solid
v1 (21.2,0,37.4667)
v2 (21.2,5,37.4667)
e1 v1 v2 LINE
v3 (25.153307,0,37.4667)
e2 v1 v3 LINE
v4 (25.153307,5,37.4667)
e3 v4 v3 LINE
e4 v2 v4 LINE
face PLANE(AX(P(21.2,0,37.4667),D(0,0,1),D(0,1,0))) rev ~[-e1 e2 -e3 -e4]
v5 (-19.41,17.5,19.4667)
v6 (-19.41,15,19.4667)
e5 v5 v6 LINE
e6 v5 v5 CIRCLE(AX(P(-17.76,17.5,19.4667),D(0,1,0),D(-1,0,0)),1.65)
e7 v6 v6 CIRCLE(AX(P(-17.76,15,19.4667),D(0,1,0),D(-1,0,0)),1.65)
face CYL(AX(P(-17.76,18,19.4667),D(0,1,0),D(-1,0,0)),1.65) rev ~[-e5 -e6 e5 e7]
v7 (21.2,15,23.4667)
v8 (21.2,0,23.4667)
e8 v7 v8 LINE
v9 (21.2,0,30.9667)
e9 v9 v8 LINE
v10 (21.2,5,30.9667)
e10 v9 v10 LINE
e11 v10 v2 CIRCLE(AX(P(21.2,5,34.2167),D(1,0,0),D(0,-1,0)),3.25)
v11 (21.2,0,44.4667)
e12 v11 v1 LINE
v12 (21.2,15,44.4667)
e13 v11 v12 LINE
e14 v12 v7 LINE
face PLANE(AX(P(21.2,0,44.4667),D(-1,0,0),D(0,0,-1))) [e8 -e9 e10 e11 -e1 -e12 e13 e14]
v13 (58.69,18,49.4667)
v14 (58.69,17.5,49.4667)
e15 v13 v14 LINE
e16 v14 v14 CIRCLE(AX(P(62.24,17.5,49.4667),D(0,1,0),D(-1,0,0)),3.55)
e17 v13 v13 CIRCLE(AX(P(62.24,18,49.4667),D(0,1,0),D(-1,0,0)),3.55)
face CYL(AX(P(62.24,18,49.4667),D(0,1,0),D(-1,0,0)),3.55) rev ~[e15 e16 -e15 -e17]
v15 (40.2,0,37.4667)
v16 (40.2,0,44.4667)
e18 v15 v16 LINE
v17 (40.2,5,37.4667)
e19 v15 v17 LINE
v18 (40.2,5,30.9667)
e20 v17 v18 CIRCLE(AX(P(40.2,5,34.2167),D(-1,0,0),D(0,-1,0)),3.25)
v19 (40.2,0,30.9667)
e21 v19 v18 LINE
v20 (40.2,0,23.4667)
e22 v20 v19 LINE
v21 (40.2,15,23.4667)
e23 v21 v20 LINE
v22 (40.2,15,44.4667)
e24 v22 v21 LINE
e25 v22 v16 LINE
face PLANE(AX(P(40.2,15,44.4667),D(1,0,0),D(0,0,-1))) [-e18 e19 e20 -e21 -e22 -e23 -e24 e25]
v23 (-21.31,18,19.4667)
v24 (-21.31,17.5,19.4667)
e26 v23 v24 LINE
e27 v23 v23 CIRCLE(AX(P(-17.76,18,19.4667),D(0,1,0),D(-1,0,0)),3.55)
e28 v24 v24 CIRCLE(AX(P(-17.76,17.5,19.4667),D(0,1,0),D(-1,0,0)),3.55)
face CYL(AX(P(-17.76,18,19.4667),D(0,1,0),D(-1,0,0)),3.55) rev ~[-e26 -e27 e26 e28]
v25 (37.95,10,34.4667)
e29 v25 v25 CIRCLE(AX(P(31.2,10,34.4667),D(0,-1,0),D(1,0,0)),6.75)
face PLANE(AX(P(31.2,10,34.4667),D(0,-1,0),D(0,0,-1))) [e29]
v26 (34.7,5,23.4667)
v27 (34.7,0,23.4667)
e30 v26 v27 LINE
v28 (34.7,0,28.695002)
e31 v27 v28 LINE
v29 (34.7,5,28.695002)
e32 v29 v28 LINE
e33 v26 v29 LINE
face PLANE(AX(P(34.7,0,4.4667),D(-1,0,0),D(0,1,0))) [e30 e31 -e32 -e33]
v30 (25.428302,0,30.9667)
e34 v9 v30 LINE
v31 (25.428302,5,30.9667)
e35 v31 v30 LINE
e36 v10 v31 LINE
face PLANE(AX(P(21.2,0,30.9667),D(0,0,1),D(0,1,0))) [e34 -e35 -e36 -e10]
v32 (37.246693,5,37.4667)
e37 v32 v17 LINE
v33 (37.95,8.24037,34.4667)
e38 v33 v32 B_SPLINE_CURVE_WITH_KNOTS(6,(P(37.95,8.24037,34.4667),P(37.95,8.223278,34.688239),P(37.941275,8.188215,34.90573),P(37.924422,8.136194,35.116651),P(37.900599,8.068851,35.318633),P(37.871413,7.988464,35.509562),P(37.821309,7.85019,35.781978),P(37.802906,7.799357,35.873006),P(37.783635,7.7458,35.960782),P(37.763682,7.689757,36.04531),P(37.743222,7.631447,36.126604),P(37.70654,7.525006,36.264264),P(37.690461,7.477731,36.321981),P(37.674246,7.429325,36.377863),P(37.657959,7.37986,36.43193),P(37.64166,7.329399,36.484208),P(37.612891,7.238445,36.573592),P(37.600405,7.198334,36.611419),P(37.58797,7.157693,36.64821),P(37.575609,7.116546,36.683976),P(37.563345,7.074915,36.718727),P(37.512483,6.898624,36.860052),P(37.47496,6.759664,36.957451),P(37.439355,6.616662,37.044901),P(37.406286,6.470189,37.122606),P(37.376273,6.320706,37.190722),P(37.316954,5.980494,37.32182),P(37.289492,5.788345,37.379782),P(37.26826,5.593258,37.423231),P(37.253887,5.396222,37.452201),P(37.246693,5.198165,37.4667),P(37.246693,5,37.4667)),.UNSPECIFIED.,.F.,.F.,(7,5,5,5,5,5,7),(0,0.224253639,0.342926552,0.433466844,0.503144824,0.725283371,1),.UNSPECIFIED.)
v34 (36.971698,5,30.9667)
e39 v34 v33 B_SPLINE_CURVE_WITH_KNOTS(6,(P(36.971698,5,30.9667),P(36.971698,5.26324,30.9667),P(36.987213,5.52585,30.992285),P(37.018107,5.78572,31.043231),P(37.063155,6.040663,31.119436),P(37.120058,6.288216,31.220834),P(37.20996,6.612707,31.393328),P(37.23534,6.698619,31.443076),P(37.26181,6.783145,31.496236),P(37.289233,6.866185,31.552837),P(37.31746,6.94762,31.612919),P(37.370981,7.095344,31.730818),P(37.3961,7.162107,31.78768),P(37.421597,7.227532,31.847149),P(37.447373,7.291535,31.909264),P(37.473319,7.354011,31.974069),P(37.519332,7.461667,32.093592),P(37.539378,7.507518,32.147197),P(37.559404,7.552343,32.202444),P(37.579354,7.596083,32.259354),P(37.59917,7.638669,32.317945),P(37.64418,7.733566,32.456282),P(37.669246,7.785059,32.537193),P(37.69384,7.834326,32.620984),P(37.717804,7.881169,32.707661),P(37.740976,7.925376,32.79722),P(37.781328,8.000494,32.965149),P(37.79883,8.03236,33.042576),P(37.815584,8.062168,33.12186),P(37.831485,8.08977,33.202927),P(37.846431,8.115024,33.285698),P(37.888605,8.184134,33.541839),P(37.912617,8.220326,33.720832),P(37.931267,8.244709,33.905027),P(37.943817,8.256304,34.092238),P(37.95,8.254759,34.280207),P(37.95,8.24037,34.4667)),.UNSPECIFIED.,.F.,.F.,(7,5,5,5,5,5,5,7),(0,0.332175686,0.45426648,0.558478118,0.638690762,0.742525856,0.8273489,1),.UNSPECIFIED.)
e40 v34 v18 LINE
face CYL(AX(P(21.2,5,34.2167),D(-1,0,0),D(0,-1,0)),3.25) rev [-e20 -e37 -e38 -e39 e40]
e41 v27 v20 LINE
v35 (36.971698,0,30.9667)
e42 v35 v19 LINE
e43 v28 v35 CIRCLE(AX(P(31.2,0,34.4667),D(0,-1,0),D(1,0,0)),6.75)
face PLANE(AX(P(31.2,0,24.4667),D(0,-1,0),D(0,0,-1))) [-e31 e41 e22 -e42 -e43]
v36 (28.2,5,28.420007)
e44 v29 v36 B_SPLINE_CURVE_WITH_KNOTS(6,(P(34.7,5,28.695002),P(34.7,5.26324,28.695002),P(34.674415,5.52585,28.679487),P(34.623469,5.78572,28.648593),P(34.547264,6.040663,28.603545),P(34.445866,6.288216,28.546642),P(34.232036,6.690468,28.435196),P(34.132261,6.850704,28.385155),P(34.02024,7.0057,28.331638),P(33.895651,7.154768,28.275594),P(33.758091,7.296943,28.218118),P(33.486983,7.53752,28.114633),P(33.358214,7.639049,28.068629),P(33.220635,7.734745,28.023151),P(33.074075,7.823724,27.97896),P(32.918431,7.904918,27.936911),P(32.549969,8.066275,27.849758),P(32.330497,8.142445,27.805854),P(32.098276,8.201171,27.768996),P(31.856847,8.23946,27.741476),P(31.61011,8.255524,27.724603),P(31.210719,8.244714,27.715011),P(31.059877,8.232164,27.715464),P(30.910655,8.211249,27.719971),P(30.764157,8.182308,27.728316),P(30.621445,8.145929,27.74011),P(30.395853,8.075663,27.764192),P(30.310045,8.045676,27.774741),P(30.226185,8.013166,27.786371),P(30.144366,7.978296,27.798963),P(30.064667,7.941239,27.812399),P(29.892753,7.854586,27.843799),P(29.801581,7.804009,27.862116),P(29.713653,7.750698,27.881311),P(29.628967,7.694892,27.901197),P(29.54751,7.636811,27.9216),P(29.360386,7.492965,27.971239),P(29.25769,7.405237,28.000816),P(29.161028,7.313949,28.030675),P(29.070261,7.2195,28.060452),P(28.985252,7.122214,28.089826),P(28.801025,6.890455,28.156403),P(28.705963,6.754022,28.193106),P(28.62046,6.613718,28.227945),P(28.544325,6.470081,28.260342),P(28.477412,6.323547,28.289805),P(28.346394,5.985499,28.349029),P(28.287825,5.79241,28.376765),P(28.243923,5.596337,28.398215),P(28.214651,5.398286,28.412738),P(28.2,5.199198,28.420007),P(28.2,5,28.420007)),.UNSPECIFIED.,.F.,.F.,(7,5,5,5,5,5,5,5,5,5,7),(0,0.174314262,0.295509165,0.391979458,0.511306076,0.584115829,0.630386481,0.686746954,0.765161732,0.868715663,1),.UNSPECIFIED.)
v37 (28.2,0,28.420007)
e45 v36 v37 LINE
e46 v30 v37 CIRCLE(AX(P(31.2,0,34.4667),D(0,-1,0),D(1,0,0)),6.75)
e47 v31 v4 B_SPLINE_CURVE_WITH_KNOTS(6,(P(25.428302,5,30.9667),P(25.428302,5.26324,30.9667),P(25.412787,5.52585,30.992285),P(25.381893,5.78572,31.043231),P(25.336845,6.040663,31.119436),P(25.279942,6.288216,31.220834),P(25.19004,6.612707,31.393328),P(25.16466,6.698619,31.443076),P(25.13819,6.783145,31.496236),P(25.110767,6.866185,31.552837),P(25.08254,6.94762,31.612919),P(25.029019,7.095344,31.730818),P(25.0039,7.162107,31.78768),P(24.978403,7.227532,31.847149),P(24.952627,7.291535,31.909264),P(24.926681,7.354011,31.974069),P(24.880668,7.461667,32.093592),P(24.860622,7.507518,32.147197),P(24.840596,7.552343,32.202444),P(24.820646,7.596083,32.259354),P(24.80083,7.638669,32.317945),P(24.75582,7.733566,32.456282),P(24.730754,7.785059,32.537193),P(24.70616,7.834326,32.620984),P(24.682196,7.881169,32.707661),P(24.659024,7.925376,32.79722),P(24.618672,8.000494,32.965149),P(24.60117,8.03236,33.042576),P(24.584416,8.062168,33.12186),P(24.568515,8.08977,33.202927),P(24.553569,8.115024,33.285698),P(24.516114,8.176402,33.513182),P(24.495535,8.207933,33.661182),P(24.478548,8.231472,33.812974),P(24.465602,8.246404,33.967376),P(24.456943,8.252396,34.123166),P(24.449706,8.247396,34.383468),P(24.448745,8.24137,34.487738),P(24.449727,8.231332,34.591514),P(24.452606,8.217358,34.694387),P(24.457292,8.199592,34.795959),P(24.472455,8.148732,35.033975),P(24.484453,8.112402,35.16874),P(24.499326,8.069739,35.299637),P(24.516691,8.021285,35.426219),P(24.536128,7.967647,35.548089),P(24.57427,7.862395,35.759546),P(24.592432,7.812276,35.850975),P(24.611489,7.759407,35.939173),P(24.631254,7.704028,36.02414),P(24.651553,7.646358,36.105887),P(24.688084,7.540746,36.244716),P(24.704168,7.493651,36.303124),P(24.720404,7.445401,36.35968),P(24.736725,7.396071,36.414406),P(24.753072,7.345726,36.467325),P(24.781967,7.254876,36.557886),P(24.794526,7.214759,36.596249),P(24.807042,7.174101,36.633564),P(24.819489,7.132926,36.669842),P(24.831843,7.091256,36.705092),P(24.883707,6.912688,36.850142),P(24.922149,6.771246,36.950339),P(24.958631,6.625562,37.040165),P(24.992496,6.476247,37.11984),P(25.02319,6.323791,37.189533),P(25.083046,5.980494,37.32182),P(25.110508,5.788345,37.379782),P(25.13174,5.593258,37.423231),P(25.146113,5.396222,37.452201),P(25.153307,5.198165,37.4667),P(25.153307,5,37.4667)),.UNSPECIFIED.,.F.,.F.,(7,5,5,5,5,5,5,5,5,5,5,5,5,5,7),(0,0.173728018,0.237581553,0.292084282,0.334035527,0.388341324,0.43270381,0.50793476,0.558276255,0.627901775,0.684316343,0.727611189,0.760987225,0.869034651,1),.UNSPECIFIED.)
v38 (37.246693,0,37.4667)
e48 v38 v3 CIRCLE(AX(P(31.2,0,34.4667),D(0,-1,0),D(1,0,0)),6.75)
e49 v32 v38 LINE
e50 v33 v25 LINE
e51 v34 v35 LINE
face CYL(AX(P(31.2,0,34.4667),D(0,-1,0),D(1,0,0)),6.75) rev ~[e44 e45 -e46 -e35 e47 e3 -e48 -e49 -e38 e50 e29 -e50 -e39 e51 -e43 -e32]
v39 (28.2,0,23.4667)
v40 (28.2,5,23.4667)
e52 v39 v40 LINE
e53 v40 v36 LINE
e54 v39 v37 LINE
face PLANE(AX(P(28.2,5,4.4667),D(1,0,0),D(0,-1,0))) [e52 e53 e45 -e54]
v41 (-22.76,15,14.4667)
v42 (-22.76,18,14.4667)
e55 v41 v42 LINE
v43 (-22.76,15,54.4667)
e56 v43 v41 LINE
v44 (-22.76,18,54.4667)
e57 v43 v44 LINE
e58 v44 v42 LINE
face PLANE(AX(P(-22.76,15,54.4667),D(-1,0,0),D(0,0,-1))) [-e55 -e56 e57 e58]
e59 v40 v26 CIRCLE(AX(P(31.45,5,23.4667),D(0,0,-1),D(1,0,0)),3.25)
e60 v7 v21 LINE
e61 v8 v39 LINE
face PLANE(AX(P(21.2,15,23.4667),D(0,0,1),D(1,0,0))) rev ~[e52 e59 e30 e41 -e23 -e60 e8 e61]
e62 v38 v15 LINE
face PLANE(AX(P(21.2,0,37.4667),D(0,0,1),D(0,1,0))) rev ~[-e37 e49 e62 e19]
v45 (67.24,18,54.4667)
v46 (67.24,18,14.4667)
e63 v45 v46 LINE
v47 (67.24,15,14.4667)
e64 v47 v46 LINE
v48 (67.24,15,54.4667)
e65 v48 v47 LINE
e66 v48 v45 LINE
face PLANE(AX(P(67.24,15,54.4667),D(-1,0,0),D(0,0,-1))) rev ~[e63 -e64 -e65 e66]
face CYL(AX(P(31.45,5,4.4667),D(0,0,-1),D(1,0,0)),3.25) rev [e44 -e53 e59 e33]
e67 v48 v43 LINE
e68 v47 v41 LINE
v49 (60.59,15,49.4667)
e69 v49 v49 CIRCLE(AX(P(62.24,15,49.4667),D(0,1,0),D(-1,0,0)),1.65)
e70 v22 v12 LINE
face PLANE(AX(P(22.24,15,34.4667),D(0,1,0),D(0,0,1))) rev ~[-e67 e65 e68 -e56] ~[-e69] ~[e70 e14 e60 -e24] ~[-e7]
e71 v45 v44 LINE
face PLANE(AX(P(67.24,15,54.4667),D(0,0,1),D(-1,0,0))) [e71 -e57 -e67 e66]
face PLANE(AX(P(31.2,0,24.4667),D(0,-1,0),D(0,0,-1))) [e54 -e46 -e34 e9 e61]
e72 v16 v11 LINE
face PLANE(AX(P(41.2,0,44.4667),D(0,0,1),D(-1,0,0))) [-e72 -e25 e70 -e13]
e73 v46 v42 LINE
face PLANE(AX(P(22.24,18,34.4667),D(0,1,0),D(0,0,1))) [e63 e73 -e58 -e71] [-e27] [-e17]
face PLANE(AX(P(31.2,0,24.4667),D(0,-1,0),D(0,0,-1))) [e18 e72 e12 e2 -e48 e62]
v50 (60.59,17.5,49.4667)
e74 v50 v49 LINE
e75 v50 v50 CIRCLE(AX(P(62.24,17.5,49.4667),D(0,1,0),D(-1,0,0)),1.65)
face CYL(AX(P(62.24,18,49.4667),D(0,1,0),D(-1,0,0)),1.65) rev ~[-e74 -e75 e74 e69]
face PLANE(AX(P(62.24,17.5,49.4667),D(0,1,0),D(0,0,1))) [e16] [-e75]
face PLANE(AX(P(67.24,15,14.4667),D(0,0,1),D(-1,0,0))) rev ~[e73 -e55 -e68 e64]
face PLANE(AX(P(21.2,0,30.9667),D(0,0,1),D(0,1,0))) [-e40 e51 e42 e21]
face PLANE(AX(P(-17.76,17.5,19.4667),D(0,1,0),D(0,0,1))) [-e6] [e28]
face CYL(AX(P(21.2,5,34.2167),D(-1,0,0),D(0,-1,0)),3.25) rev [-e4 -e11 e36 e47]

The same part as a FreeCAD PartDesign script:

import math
import FreeCAD as App
import Part
import Sketcher

V = App.Vector
Q = App.Units.Quantity

doc = App.newDocument("Part")
body = doc.addObject("PartDesign::Body", "Body")

sketch1 = body.newObject("Sketcher::SketchObject", "Sketch")
sketch1.AttachmentSupport = (doc.getObject("XZ_Plane"), [""])
sketch1.MapMode = "FlatFace"
sketch1.addGeometry(Part.LineSegment(V(21.2, 44.4667, 0), V(21.2, 4.4667, 0)), False)
sketch1.addGeometry(Part.LineSegment(V(21.2, 4.4667, 0), V(41.2, 4.4667, 0)), False)
sketch1.addGeometry(Part.LineSegment(V(41.2, 4.4667, 0), V(41.2, 44.4667, 0)), False)
sketch1.addGeometry(Part.LineSegment(V(41.2, 44.4667, 0), V(21.2, 44.4667, 0)), False)
sketch1.addConstraint(Sketcher.Constraint("Coincident", 0, 2, 1, 1))
sketch1.addConstraint(Sketcher.Constraint("Coincident", 1, 2, 2, 1))
sketch1.addConstraint(Sketcher.Constraint("Coincident", 2, 2, 3, 1))
sketch1.addConstraint(Sketcher.Constraint("Coincident", 3, 2, 0, 1))
sketch1.addConstraint(Sketcher.Constraint("Vertical", 0))
sketch1.addConstraint(Sketcher.Constraint("Horizontal", 1))
sketch1.addConstraint(Sketcher.Constraint("Vertical", 2))
sketch1.addConstraint(Sketcher.Constraint("Horizontal", 3))
sketch1.addConstraint(Sketcher.Constraint("DistanceX", -1, 1, 0, 2, Q("21.2 mm")))
sketch1.addConstraint(Sketcher.Constraint("DistanceX", -1, 1, 1, 2, Q("41.2 mm")))
sketch1.addConstraint(Sketcher.Constraint("DistanceY", 0, 2, 0, 1, Q("40 mm")))
sketch1.addConstraint(Sketcher.Constraint("DistanceY", -1, 1, 0, 2, Q("4.4667 mm")))
pad1 = body.newObject("PartDesign::Pad", "Pad")
pad1.Profile = sketch1
pad1.Length = 15
pad1.Reversed = True

sketch2 = body.newObject("Sketcher::SketchObject", "Sketch001")
sketch2.AttachmentSupport = (doc.getObject("XZ_Plane"), [""])
sketch2.MapMode = "FlatFace"
sketch2.addGeometry(Part.Circle(V(31.2, 34.4667, 0), V(0, 0, 1), 6.75), False)
sketch2.addConstraint(Sketcher.Constraint("Diameter", 0, Q("13.5 mm")))
sketch2.addConstraint(Sketcher.Constraint("DistanceX", -1, 1, 0, 3, Q("31.2 mm")))
sketch2.addConstraint(Sketcher.Constraint("DistanceY", -1, 1, 0, 3, Q("34.4667 mm")))
pocket1 = body.newObject("PartDesign::Pocket", "Pocket")
pocket1.Profile = sketch2
pocket1.Length = 10

sketch3 = body.newObject("Sketcher::SketchObject", "Sketch002")
sketch3.AttachmentSupport = (doc.getObject("YZ_Plane"), [""])
sketch3.MapMode = "FlatFace"
sketch3.AttachmentOffset = App.Placement(V(0, 0, 21.2), App.Rotation())
sketch3.addGeometry(Part.LineSegment(V(0, 30.9667, 0), V(0, 37.4667, 0)), False)
sketch3.addGeometry(Part.LineSegment(V(0, 37.4667, 0), V(5, 37.4667, 0)), False)
sketch3.addGeometry(Part.ArcOfCircle(Part.Circle(V(5, 34.2167, 0), V(0, 0, 1), 3.25), math.radians(-90), math.radians(90)), False)
sketch3.addGeometry(Part.LineSegment(V(5, 30.9667, 0), V(0, 30.9667, 0)), False)
sketch3.addConstraint(Sketcher.Constraint("Coincident", 0, 2, 1, 1))
sketch3.addConstraint(Sketcher.Constraint("Tangent", 1, 2, 2, 2))
sketch3.addConstraint(Sketcher.Constraint("Tangent", 2, 1, 3, 1))
sketch3.addConstraint(Sketcher.Constraint("Coincident", 3, 2, 0, 1))
sketch3.addConstraint(Sketcher.Constraint("Vertical", 0))
sketch3.addConstraint(Sketcher.Constraint("Horizontal", 1))
sketch3.addConstraint(Sketcher.Constraint("Horizontal", 3))
sketch3.addConstraint(Sketcher.Constraint("PointOnObject", 0, 2, -2))
sketch3.addConstraint(Sketcher.Constraint("DistanceX", 1, 1, 1, 2, Q("5 mm")))
sketch3.addConstraint(Sketcher.Constraint("Radius", 2, Q("3.25 mm")))
sketch3.addConstraint(Sketcher.Constraint("DistanceY", -1, 1, 2, 3, Q("34.2167 mm")))
pocket2 = body.newObject("PartDesign::Pocket", "Pocket001")
pocket2.Profile = sketch3
pocket2.Type = "ThroughAll"
pocket2.Reversed = True

sketch4 = body.newObject("Sketcher::SketchObject", "Sketch003")
sketch4.AttachmentSupport = (doc.getObject("XZ_Plane"), [""])
sketch4.MapMode = "FlatFace"
sketch4.AttachmentOffset = App.Placement(V(0, 0, -15), App.Rotation())
sketch4.addGeometry(Part.LineSegment(V(40.2, 44.4667, 0), V(41.2, 44.4667, 0)), False)
sketch4.addGeometry(Part.LineSegment(V(41.2, 44.4667, 0), V(41.2, 4.4667, 0)), False)
sketch4.addGeometry(Part.LineSegment(V(41.2, 4.4667, 0), V(40.2, 4.4667, 0)), False)
sketch4.addGeometry(Part.LineSegment(V(40.2, 4.4667, 0), V(40.2, 44.4667, 0)), False)
sketch4.addConstraint(Sketcher.Constraint("Coincident", 0, 2, 1, 1))
sketch4.addConstraint(Sketcher.Constraint("Coincident", 1, 2, 2, 1))
sketch4.addConstraint(Sketcher.Constraint("Coincident", 2, 2, 3, 1))
sketch4.addConstraint(Sketcher.Constraint("Coincident", 3, 2, 0, 1))
sketch4.addConstraint(Sketcher.Constraint("Horizontal", 0))
sketch4.addConstraint(Sketcher.Constraint("Vertical", 1))
sketch4.addConstraint(Sketcher.Constraint("Horizontal", 2))
sketch4.addConstraint(Sketcher.Constraint("Vertical", 3))
sketch4.addConstraint(Sketcher.Constraint("DistanceX", 0, 1, 0, 2, Q("1 mm")))
sketch4.addConstraint(Sketcher.Constraint("DistanceY", 1, 2, 1, 1, Q("40 mm")))
sketch4.addConstraint(Sketcher.Constraint("DistanceX", -1, 1, 0, 2, Q("41.2 mm")))
sketch4.addConstraint(Sketcher.Constraint("DistanceY", -1, 1, 0, 2, Q("44.4667 mm")))
pocket3 = body.newObject("PartDesign::Pocket", "Pocket002")
pocket3.Profile = sketch4
pocket3.Type = "ThroughAll"
pocket3.Reversed = True

sketch5 = body.newObject("Sketcher::SketchObject", "Sketch004")
sketch5.AttachmentSupport = (doc.getObject("XY_Plane"), [""])
sketch5.MapMode = "FlatFace"
sketch5.AttachmentOffset = App.Placement(V(0, 0, 4.4667), App.Rotation())
sketch5.addGeometry(Part.LineSegment(V(34.7, 5, 0), V(34.7, 0, 0)), False)
sketch5.addGeometry(Part.LineSegment(V(34.7, 0, 0), V(28.2, 0, 0)), False)
sketch5.addGeometry(Part.LineSegment(V(28.2, 0, 0), V(28.2, 5, 0)), False)
sketch5.addGeometry(Part.ArcOfCircle(Part.Circle(V(31.45, 5, 0), V(0, 0, 1), 3.25), math.radians(0), math.radians(180)), False)
sketch5.addConstraint(Sketcher.Constraint("Coincident", 0, 2, 1, 1))
sketch5.addConstraint(Sketcher.Constraint("Coincident", 1, 2, 2, 1))
sketch5.addConstraint(Sketcher.Constraint("Tangent", 2, 2, 3, 2))
sketch5.addConstraint(Sketcher.Constraint("Tangent", 3, 1, 0, 1))
sketch5.addConstraint(Sketcher.Constraint("Vertical", 0))
sketch5.addConstraint(Sketcher.Constraint("Horizontal", 1))
sketch5.addConstraint(Sketcher.Constraint("Vertical", 2))
sketch5.addConstraint(Sketcher.Constraint("PointOnObject", 0, 2, -1))
sketch5.addConstraint(Sketcher.Constraint("Radius", 3, Q("3.25 mm")))
sketch5.addConstraint(Sketcher.Constraint("DistanceY", 0, 2, 0, 1, Q("5 mm")))
sketch5.addConstraint(Sketcher.Constraint("DistanceX", -1, 1, 0, 2, Q("34.7 mm")))
pocket4 = body.newObject("PartDesign::Pocket", "Pocket003")
pocket4.Profile = sketch5
pocket4.Type = "UpToFirst"
pocket4.Reversed = True

sketch6 = body.newObject("Sketcher::SketchObject", "Sketch005")
sketch6.AttachmentSupport = (doc.getObject("XZ_Plane"), [""])
sketch6.MapMode = "FlatFace"
sketch6.AttachmentOffset = App.Placement(V(0, 0, -15), App.Rotation())
sketch6.addGeometry(Part.LineSegment(V(40.2, 23.4667, 0), V(40.2, 4.4667, 0)), False)
sketch6.addGeometry(Part.LineSegment(V(40.2, 4.4667, 0), V(21.2, 4.4667, 0)), False)
sketch6.addGeometry(Part.LineSegment(V(21.2, 4.4667, 0), V(21.2, 23.4667, 0)), False)
sketch6.addGeometry(Part.LineSegment(V(21.2, 23.4667, 0), V(40.2, 23.4667, 0)), False)
sketch6.addConstraint(Sketcher.Constraint("Coincident", 0, 2, 1, 1))
sketch6.addConstraint(Sketcher.Constraint("Coincident", 1, 2, 2, 1))
sketch6.addConstraint(Sketcher.Constraint("Coincident", 2, 2, 3, 1))
sketch6.addConstraint(Sketcher.Constraint("Coincident", 3, 2, 0, 1))
sketch6.addConstraint(Sketcher.Constraint("Vertical", 0))
sketch6.addConstraint(Sketcher.Constraint("Horizontal", 1))
sketch6.addConstraint(Sketcher.Constraint("Vertical", 2))
sketch6.addConstraint(Sketcher.Constraint("Horizontal", 3))
sketch6.addConstraint(Sketcher.Constraint("Equal", 3, 0))
sketch6.addConstraint(Sketcher.Constraint("DistanceX", 1, 2, 1, 1, Q("19 mm")))
sketch6.addConstraint(Sketcher.Constraint("DistanceX", -1, 1, 0, 2, Q("40.2 mm")))
sketch6.addConstraint(Sketcher.Constraint("DistanceY", -1, 1, 0, 2, Q("4.4667 mm")))
pocket5 = body.newObject("PartDesign::Pocket", "Pocket004")
pocket5.Profile = sketch6
pocket5.Type = "UpToFirst"
pocket5.Reversed = True

sketch7 = body.newObject("Sketcher::SketchObject", "Sketch006")
sketch7.AttachmentSupport = (doc.getObject("XZ_Plane"), [""])
sketch7.MapMode = "FlatFace"
sketch7.AttachmentOffset = App.Placement(V(0, 0, -15), App.Rotation())
sketch7.addGeometry(Part.LineSegment(V(-22.76, 54.4667, 0), V(67.24, 54.4667, 0)), False)
sketch7.addGeometry(Part.LineSegment(V(67.24, 54.4667, 0), V(67.24, 14.4667, 0)), False)
sketch7.addGeometry(Part.LineSegment(V(67.24, 14.4667, 0), V(-22.76, 14.4667, 0)), False)
sketch7.addGeometry(Part.LineSegment(V(-22.76, 14.4667, 0), V(-22.76, 54.4667, 0)), False)
sketch7.addConstraint(Sketcher.Constraint("Coincident", 0, 2, 1, 1))
sketch7.addConstraint(Sketcher.Constraint("Coincident", 1, 2, 2, 1))
sketch7.addConstraint(Sketcher.Constraint("Coincident", 2, 2, 3, 1))
sketch7.addConstraint(Sketcher.Constraint("Coincident", 3, 2, 0, 1))
sketch7.addConstraint(Sketcher.Constraint("Horizontal", 0))
sketch7.addConstraint(Sketcher.Constraint("Vertical", 1))
sketch7.addConstraint(Sketcher.Constraint("Horizontal", 2))
sketch7.addConstraint(Sketcher.Constraint("Vertical", 3))
sketch7.addConstraint(Sketcher.Constraint("DistanceX", 0, 1, 0, 2, Q("90 mm")))
sketch7.addConstraint(Sketcher.Constraint("DistanceY", 1, 2, 1, 1, Q("40 mm")))
sketch7.addConstraint(Sketcher.Constraint("DistanceX", -1, 1, 0, 2, Q("67.24 mm")))
sketch7.addConstraint(Sketcher.Constraint("DistanceY", -1, 1, 0, 2, Q("54.4667 mm")))
pad2 = body.newObject("PartDesign::Pad", "Pad001")
pad2.Profile = sketch7
pad2.Length = 3
pad2.Reversed = True

sketch8 = body.newObject("Sketcher::SketchObject", "Sketch007")
sketch8.AttachmentSupport = (doc.getObject("XZ_Plane"), [""])
sketch8.MapMode = "FlatFace"
sketch8.AttachmentOffset = App.Placement(V(0, 0, -18), App.Rotation())
sketch8.addGeometry(Part.Circle(V(62.24, 49.4667, 0), V(0, 0, 1), 1.65), False)
sketch8.addGeometry(Part.Circle(V(-17.76, 19.4667, 0), V(0, 0, 1), 1.65), False)
sketch8.addConstraint(Sketcher.Constraint("Equal", 0, 1))
sketch8.addConstraint(Sketcher.Constraint("Diameter", 0, Q("3.3 mm")))
sketch8.addConstraint(Sketcher.Constraint("DistanceX", 1, 3, 0, 3, Q("80 mm")))
sketch8.addConstraint(Sketcher.Constraint("DistanceY", 1, 3, 0, 3, Q("30 mm")))
sketch8.addConstraint(Sketcher.Constraint("DistanceX", -1, 1, 0, 3, Q("62.24 mm")))
sketch8.addConstraint(Sketcher.Constraint("DistanceY", -1, 1, 0, 3, Q("49.4667 mm")))
pocket6 = body.newObject("PartDesign::Pocket", "Pocket005")
pocket6.Profile = sketch8
pocket6.Type = "ThroughAll"
pocket6.Reversed = True

sketch9 = body.newObject("Sketcher::SketchObject", "Sketch008")
sketch9.AttachmentSupport = (doc.getObject("XZ_Plane"), [""])
sketch9.MapMode = "FlatFace"
sketch9.AttachmentOffset = App.Placement(V(0, 0, -18), App.Rotation())
sketch9.addGeometry(Part.Circle(V(62.24, 49.4667, 0), V(0, 0, 1), 3.55), False)
sketch9.addGeometry(Part.Circle(V(-17.76, 19.4667, 0), V(0, 0, 1), 3.55), False)
sketch9.addConstraint(Sketcher.Constraint("Equal", 0, 1))
sketch9.addConstraint(Sketcher.Constraint("Diameter", 0, Q("7.1 mm")))
sketch9.addConstraint(Sketcher.Constraint("DistanceX", 1, 3, 0, 3, Q("80 mm")))
sketch9.addConstraint(Sketcher.Constraint("DistanceY", 1, 3, 0, 3, Q("30 mm")))
sketch9.addConstraint(Sketcher.Constraint("DistanceX", -1, 1, 0, 3, Q("62.24 mm")))
sketch9.addConstraint(Sketcher.Constraint("DistanceY", -1, 1, 0, 3, Q("49.4667 mm")))
pocket7 = body.newObject("PartDesign::Pocket", "Pocket006")
pocket7.Profile = sketch9
pocket7.Length = 0.5
pocket7.Reversed = True

doc.recompute()
